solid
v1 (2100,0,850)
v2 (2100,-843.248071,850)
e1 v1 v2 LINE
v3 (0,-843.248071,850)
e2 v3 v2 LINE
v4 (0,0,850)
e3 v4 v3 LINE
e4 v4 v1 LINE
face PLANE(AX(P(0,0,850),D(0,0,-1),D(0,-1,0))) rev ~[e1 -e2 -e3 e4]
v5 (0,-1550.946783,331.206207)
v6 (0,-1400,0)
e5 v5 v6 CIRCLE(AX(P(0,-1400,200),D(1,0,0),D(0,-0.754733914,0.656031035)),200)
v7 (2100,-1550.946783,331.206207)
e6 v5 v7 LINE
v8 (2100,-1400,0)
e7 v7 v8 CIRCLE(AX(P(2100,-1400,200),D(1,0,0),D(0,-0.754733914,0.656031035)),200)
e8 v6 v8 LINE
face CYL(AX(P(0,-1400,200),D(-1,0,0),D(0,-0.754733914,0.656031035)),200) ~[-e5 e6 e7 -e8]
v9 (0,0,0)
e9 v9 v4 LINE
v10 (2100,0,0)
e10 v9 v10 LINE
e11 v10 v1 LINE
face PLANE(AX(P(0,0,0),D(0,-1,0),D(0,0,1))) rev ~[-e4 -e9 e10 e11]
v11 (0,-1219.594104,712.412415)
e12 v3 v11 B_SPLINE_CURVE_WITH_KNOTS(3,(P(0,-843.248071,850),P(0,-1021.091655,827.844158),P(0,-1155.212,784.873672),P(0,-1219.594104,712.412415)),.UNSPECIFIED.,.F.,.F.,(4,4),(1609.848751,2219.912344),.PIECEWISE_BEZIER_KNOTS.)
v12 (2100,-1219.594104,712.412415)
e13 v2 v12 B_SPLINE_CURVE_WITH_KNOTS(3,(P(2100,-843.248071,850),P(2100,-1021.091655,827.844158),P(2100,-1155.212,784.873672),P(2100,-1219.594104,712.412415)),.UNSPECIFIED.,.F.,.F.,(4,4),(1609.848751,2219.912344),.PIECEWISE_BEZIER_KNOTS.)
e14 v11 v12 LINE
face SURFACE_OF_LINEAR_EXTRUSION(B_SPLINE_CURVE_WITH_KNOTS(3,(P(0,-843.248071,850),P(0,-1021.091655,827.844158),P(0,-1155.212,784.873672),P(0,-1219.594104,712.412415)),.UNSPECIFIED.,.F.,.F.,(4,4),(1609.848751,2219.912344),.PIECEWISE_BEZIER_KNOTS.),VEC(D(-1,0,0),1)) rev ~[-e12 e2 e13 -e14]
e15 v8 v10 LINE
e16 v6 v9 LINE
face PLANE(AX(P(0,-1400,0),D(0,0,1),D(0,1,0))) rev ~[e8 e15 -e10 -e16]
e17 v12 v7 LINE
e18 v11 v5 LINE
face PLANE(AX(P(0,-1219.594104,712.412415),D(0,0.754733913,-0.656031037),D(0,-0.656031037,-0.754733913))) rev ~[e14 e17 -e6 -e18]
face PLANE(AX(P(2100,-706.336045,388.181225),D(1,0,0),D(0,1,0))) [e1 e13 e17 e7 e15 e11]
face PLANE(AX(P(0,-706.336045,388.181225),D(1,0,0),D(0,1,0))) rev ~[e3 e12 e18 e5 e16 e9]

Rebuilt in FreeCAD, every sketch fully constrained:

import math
import FreeCAD as App
import Part
import Sketcher

V = App.Vector

doc = App.newDocument("Part")
body = doc.addObject("PartDesign::Body", "Body")

# Sketch on YZ plane
sketch1 = doc.addObject("Sketcher::SketchObject", "Sketch")
body.addObject(sketch1)
sketch1.AttachmentSupport = (doc.YZ_Plane, [""])
sketch1.MapMode = "FlatFace"
sketch1.addGeometry(Part.LineSegment(V(-1400, 0, 0), V(0, 0, 0)), False)
sketch1.addGeometry(Part.LineSegment(V(0, 0, 0), V(0, 850, 0)), False)
sketch1.addGeometry(Part.LineSegment(V(0, 850, 0), V(-843.248071, 850, 0)), False)
sketch1.addGeometry(Part.BSplineCurve([V(-843.248071, 850, 0), V(-1021.091655, 827.844158, 0), V(-1155.212, 784.873672, 0), V(-1219.594104, 712.412415, 0)], [4, 4], [1609.848751, 2219.912344], False, 3, [1, 1, 1, 1], False), False)
sketch1.addGeometry(Part.LineSegment(V(-1219.594104, 712.412415, 0), V(-1550.946783, 331.206207, 0)), False)
sketch1.addGeometry(Part.ArcOfCircle(Part.Circle(V(-1400, 200, 0), V(0, 0, 1), 200), math.radians(139.002125), math.radians(270)), False)
sketch1.addConstraint(Sketcher.Constraint("Block", 3))
sketch1.addConstraint(Sketcher.Constraint("Coincident", 0, 2, 1, 1))
sketch1.addConstraint(Sketcher.Constraint("Coincident", 1, 2, 2, 1))
sketch1.addConstraint(Sketcher.Constraint("Coincident", 2, 2, 3, 1))
sketch1.addConstraint(Sketcher.Constraint("Coincident", 3, 2, 4, 1))
sketch1.addConstraint(Sketcher.Constraint("Tangent", 4, 2, 5, 1))
sketch1.addConstraint(Sketcher.Constraint("Tangent", 5, 2, 0, 1))
sketch1.addConstraint(Sketcher.Constraint("Horizontal", 0))
sketch1.addConstraint(Sketcher.Constraint("Vertical", 1))
sketch1.addConstraint(Sketcher.Constraint("Horizontal", 2))
sketch1.addConstraint(Sketcher.Constraint("Coincident", 0, 2, -1, 1))
sketch1.addConstraint(Sketcher.Constraint("Radius", 5, 200.0))
sketch1.addConstraint(Sketcher.Constraint("DistanceX", 0, 1, 0, 2, 1400.0))
pad1 = doc.addObject("PartDesign::Pad", "Pad")
body.addObject(pad1)
pad1.Profile = sketch1
pad1.Length = 2100

doc.recompute()
